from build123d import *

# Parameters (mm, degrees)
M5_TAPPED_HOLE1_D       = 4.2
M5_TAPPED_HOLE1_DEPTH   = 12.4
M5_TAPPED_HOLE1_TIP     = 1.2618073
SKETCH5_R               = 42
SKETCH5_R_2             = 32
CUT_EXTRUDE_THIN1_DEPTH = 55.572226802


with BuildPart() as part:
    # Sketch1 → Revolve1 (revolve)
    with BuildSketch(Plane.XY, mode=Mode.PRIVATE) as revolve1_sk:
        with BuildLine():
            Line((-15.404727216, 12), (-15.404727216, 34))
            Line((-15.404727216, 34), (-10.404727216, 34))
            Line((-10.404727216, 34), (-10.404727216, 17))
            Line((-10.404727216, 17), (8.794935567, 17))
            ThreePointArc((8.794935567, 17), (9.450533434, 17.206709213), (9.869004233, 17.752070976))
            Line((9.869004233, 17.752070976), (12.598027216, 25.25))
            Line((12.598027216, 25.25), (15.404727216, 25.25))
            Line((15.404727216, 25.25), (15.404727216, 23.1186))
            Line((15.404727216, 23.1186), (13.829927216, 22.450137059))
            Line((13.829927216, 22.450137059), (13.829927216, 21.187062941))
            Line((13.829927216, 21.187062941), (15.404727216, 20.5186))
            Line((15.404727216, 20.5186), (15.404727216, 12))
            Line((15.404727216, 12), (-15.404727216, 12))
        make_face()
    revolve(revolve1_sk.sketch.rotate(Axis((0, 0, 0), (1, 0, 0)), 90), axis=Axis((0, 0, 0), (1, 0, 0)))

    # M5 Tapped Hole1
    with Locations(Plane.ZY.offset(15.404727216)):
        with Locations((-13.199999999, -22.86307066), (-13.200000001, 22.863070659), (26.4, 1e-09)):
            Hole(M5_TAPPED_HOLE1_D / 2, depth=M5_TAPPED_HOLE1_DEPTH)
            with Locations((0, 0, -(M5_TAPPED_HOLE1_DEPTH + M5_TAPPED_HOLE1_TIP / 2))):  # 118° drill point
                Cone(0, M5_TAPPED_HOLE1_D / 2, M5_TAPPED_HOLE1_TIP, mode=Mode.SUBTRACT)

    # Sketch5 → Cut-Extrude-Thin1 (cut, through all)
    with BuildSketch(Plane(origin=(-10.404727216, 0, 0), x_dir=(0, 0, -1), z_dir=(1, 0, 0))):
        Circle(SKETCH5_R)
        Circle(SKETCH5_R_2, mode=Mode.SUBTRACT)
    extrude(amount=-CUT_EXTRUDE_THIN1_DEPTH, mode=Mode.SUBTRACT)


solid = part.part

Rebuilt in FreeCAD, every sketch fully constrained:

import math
import FreeCAD as App
import Part
import Sketcher

V = App.Vector
Q = App.Units.Quantity

doc = App.newDocument("Part")
body = doc.addObject("PartDesign::Body", "Body")

# Sketch on XY plane
sketch1 = doc.addObject("Sketcher::SketchObject", "Sketch")
body.addObject(sketch1)
sketch1.AttachmentSupport = (doc.XY_Plane, [""])
sketch1.MapMode = "FlatFace"
sketch1.addGeometry([
    Part.LineSegment(V(-15.4, 34, 0), V(-15.4, 12, 0)),  # 0
    Part.LineSegment(V(-15.4, 12, 0), V(15.4, 12, 0)),  # 1
    Part.LineSegment(V(15.4, 12, 0), V(15.4, 20.5, 0)),  # 2
    Part.LineSegment(V(15.4, 20.5, 0), V(13.8, 21.2, 0)),  # 3
    Part.LineSegment(V(13.8, 21.2, 0), V(13.8, 22.5, 0)),  # 4
    Part.LineSegment(V(13.8, 22.5, 0), V(15.4, 23.1, 0)),  # 5
    Part.LineSegment(V(15.4, 23.1, 0), V(15.4, 25.2, 0)),  # 6
    Part.LineSegment(V(15.4, 25.2, 0), V(12.6, 25.2, 0)),  # 7
    Part.LineSegment(V(12.6, 25.2, 0), V(9.9, 17.8, 0)),  # 8
    Part.ArcOfCircle(Part.Circle(V(8.8, 18.1, 0), V(0, 0, 1), 1.1), math.radians(-90), math.radians(-20)),  # 9
    Part.LineSegment(V(8.8, 17, 0), V(-10.4, 17, 0)),  # 10
    Part.LineSegment(V(-10.4, 17, 0), V(-10.4, 34, 0)),  # 11
    Part.LineSegment(V(-10.4, 34, 0), V(-15.4, 34, 0)),  # 12
], False)
sketch1.addConstraint([
    Sketcher.Constraint("Coincident", 0, 2, 1, 1),
    Sketcher.Constraint("Coincident", 1, 2, 2, 1),
    Sketcher.Constraint("Coincident", 2, 2, 3, 1),
    Sketcher.Constraint("Coincident", 3, 2, 4, 1),
    Sketcher.Constraint("Coincident", 4, 2, 5, 1),
    Sketcher.Constraint("Coincident", 5, 2, 6, 1),
    Sketcher.Constraint("Coincident", 6, 2, 7, 1),
    Sketcher.Constraint("Coincident", 7, 2, 8, 1),
    Sketcher.Constraint("Tangent", 8, 2, 9, 2),
    Sketcher.Constraint("Tangent", 9, 1, 10, 1),
    Sketcher.Constraint("Coincident", 10, 2, 11, 1),
    Sketcher.Constraint("Coincident", 11, 2, 12, 1),
    Sketcher.Constraint("Coincident", 12, 2, 0, 1),
    Sketcher.Constraint("Vertical", 0),
    Sketcher.Constraint("Horizontal", 1),
    Sketcher.Constraint("Vertical", 2),
    Sketcher.Constraint("Vertical", 4),
    Sketcher.Constraint("Vertical", 6),
    Sketcher.Constraint("Horizontal", 7),
    Sketcher.Constraint("Horizontal", 10),
    Sketcher.Constraint("Vertical", 11),
    Sketcher.Constraint("Horizontal", 12),
    Sketcher.Constraint("Vertical", 2, 2, 5, 2),
    Sketcher.Constraint("Equal", 3, 5),
    Sketcher.Constraint("DistanceX", 12, 2, 12, 1, 5.0),
    Sketcher.Constraint("DistanceY", 0, 2, 0, 1, 22.0),
    Sketcher.Constraint("DistanceY", 11, 1, 11, 2, 17.0),
    Sketcher.Constraint("Angle", 3, Q("157 deg")),
    Sketcher.Constraint("Angle", 8, Q("-110 deg")),
    Sketcher.Constraint("DistanceY", -1, 1, 0, 2, 12.0),
    Sketcher.Constraint("Radius", 9, 1.143),
    Sketcher.Constraint("DistanceY", 2, 2, 5, 2, 2.6),
    Sketcher.Constraint("DistanceY", -1, 1, 6, 2, 25.25),
    Sketcher.Constraint("DistanceX", 7, 2, 7, 1, 2.8067),
    Sketcher.Constraint("DistanceY", 2, 1, 2, 2, 8.5186),
    Sketcher.Constraint("Distance", 3, 1.7108),
    Sketcher.Constraint("DistanceX", 1, 1, 1, 2, 30.809454),
    Sketcher.Constraint("DistanceX", -1, 1, 9, 3, 8.794936),
])
revolution = doc.addObject("PartDesign::Revolution", "Revolution")
body.addObject(revolution)
revolution.Profile = sketch1
revolution.ReferenceAxis = (sketch1, ["H_Axis"])
revolution.Angle = 360

# Sketch on YZ plane
sketch2 = doc.addObject("Sketcher::SketchObject", "Sketch001")
body.addObject(sketch2)
sketch2.AttachmentSupport = (doc.YZ_Plane, [""])
sketch2.MapMode = "FlatFace"
sketch2.AttachmentOffset = App.Placement(V(0, 0, -15.404727), App.Rotation())
sketch2.addGeometry([
    Part.Circle(V(-22.9, -13.2, 0), V(0, 0, 1), 2.1),
    Part.Circle(V(22.9, -13.2, 0), V(0, 0, 1), 2.1),
    Part.Circle(V(0, 26.4, 0), V(0, 0, 1), 2.1),
], False)
sketch2.addConstraint([
    Sketcher.Constraint("Equal", 0, 1),
    Sketcher.Constraint("Equal", 1, 2),
    Sketcher.Constraint("Symmetric", 0, 3, 1, 3, -2),
    Sketcher.Constraint("PointOnObject", 2, 3, -2),
    Sketcher.Constraint("Diameter", 0, 4.2),
    Sketcher.Constraint("DistanceY", 0, 3, -1, 1, 13.2),
    Sketcher.Constraint("DistanceY", -1, 1, 2, 3, 26.4),
    Sketcher.Constraint("DistanceX", 0, 3, -1, 1, 22.863071),
])
doc.recompute()
hole = doc.addObject("PartDesign::Hole", "Hole")
body.addObject(hole)
hole.Profile = sketch2
hole.ThreadType = "None"
hole.Diameter = 4.2
hole.DepthType = "Dimension"
hole.Depth = 12.4
hole.DrillPoint = "Angled"
hole.DrillPointAngle = 118
hole.Reversed = True

# Sketch on YZ plane
sketch3 = doc.addObject("Sketcher::SketchObject", "Sketch002")
body.addObject(sketch3)
sketch3.AttachmentSupport = (doc.YZ_Plane, [""])
sketch3.MapMode = "FlatFace"
sketch3.AttachmentOffset = App.Placement(V(0, 0, -10.404727), App.Rotation())
sketch3.addGeometry([
    Part.Circle(V(0, 0, 0), V(0, 0, 1), 42),
    Part.Circle(V(0, 0, 0), V(0, 0, 1), 32),
], False)
sketch3.addConstraint([
    Sketcher.Constraint("Coincident", 0, 3, -1, 1),
    Sketcher.Constraint("Coincident", 1, 3, -1, 1),
    Sketcher.Constraint("Diameter", 0, 84.0),
    Sketcher.Constraint("Diameter", 1, 64.0),
])
pocket1 = doc.addObject("PartDesign::Pocket", "Pocket")
body.addObject(pocket1)
pocket1.Profile = sketch3
pocket1.Type = "ThroughAll"

doc.recompute()
